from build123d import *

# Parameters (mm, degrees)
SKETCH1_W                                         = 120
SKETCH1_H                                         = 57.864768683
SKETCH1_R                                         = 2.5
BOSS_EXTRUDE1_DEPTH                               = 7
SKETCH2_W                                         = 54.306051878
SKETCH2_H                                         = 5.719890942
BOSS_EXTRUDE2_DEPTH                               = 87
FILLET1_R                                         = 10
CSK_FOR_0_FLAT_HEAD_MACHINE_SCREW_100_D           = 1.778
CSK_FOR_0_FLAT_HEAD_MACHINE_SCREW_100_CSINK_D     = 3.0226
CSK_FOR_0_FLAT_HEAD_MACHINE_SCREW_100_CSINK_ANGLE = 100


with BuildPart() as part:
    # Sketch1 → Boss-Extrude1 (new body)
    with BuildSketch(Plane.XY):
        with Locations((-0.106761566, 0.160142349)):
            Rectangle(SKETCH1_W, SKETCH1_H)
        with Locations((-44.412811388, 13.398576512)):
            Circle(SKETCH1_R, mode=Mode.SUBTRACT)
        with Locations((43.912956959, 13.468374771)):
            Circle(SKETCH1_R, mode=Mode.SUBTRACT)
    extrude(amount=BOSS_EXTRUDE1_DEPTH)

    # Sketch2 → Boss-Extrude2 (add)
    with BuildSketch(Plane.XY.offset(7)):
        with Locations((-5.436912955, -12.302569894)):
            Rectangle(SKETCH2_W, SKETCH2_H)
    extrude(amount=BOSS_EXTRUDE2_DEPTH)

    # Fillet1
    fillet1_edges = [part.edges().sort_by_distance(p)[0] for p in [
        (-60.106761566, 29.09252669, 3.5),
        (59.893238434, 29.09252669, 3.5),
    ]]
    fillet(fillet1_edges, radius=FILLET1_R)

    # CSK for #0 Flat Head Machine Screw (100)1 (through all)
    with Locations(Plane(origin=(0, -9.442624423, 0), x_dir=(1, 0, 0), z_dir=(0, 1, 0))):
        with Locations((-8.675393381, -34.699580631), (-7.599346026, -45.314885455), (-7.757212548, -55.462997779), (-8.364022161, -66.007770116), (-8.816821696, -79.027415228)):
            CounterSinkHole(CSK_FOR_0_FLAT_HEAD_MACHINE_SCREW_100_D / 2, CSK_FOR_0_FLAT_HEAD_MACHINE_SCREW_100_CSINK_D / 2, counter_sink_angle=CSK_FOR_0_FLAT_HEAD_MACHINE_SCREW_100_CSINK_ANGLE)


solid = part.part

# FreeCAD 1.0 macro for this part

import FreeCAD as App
import Part
import Sketcher

V = App.Vector
Q = App.Units.Quantity


def edges_at(feature, points):
    """Names of the edges that pass closest to the given points."""
    edges = feature.Shape.Edges
    near = lambda p: min(range(len(edges)), key=lambda i: edges[i].distToShape(Part.Vertex(*p))[0])
    return sorted({f"Edge{near(p) + 1}" for p in points})

doc = App.newDocument("Part")
params = doc.addObject("Spreadsheet::Sheet", "Params")
for row, (alias, value) in enumerate([
    ("sketch1_diameter", "5 mm"),
    ("sketch1_width", "120 mm"),
    ("pad1_length", "7 mm"),
    ("pad2_length", "87 mm"),
    ("fillet_radius", "10 mm"),
    ("hole_diameter", "1.778 mm"),
    ("hole_csink_diameter", "3.0226 mm"),
], start=1):
    params.set(f"A{row}", alias)
    params.set(f"B{row}", "=" + value)
    params.setAlias(f"B{row}", alias)

body = doc.addObject("PartDesign::Body", "Body")

sketch1 = body.newObject("Sketcher::SketchObject", "Sketch")
sketch1.AttachmentSupport = (doc.getObject("XY_Plane"), [""])
sketch1.MapMode = "FlatFace"
sketch1.addGeometry(Part.LineSegment(V(-60.106762, 29.092527, 0), V(-60.106762, -28.772242, 0)), False)
sketch1.addGeometry(Part.LineSegment(V(-60.106762, -28.772242, 0), V(59.893238, -28.772242, 0)), False)
sketch1.addGeometry(Part.LineSegment(V(59.893238, -28.772242, 0), V(59.893238, 29.092527, 0)), False)
sketch1.addGeometry(Part.LineSegment(V(59.893238, 29.092527, 0), V(-60.106762, 29.092527, 0)), False)
sketch1.addGeometry(Part.Circle(V(-44.412811, 13.398577, 0), V(0, 0, 1), 2.5), False)
sketch1.addGeometry(Part.Circle(V(43.912957, 13.468375, 0), V(0, 0, 1), 2.5), False)
sketch1.addConstraint(Sketcher.Constraint("Coincident", 0, 2, 1, 1))
sketch1.addConstraint(Sketcher.Constraint("Coincident", 1, 2, 2, 1))
sketch1.addConstraint(Sketcher.Constraint("Coincident", 2, 2, 3, 1))
sketch1.addConstraint(Sketcher.Constraint("Coincident", 3, 2, 0, 1))
sketch1.addConstraint(Sketcher.Constraint("Vertical", 0))
sketch1.addConstraint(Sketcher.Constraint("Horizontal", 1))
sketch1.addConstraint(Sketcher.Constraint("Vertical", 2))
sketch1.addConstraint(Sketcher.Constraint("Horizontal", 3))
sketch1.addConstraint(Sketcher.Constraint("Equal", 4, 5))
sketch1.addConstraint(Sketcher.Constraint("Diameter", 4, Q("5 mm")))
sketch1.addConstraint(Sketcher.Constraint("DistanceX", 1, 1, 1, 2, Q("120 mm")))
sketch1.addConstraint(Sketcher.Constraint("DistanceY", 0, 2, 0, 1, Q("57.864769 mm")))
sketch1.addConstraint(Sketcher.Constraint("DistanceY", 4, 3, 5, 3, Q("0.069798 mm")))
sketch1.addConstraint(Sketcher.Constraint("DistanceX", 4, 3, -1, 1, Q("44.412811 mm")))
sketch1.addConstraint(Sketcher.Constraint("DistanceX", 0, 2, -1, 1, Q("60.106762 mm")))
sketch1.addConstraint(Sketcher.Constraint("DistanceY", 0, 2, -1, 1, Q("28.772242 mm")))
sketch1.addConstraint(Sketcher.Constraint("DistanceX", 4, 3, 5, 3, Q("88.325768 mm")))
sketch1.addConstraint(Sketcher.Constraint("DistanceY", 0, 2, 4, 3, Q("42.170819 mm")))
sketch1.setExpression("Constraints[9]", "Params.sketch1_diameter")
sketch1.setExpression("Constraints[10]", "Params.sketch1_width")
pad1 = body.newObject("PartDesign::Pad", "Pad")
pad1.Profile = sketch1
pad1.setExpression("Length", "Params.pad1_length")

sketch2 = body.newObject("Sketcher::SketchObject", "Sketch001")
sketch2.AttachmentSupport = (doc.getObject("XY_Plane"), [""])
sketch2.MapMode = "FlatFace"
sketch2.AttachmentOffset = App.Placement(V(0, 0, 7), App.Rotation())
sketch2.addGeometry(Part.LineSegment(V(-32.589939, -9.442624, 0), V(-32.589939, -15.162515, 0)), False)
sketch2.addGeometry(Part.LineSegment(V(-32.589939, -15.162515, 0), V(21.716113, -15.162515, 0)), False)
sketch2.addGeometry(Part.LineSegment(V(21.716113, -15.162515, 0), V(21.716113, -9.442624, 0)), False)
sketch2.addGeometry(Part.LineSegment(V(21.716113, -9.442624, 0), V(-32.589939, -9.442624, 0)), False)
sketch2.addConstraint(Sketcher.Constraint("Coincident", 0, 2, 1, 1))
sketch2.addConstraint(Sketcher.Constraint("Coincident", 1, 2, 2, 1))
sketch2.addConstraint(Sketcher.Constraint("Coincident", 2, 2, 3, 1))
sketch2.addConstraint(Sketcher.Constraint("Coincident", 3, 2, 0, 1))
sketch2.addConstraint(Sketcher.Constraint("Vertical", 0))
sketch2.addConstraint(Sketcher.Constraint("Horizontal", 1))
sketch2.addConstraint(Sketcher.Constraint("Vertical", 2))
sketch2.addConstraint(Sketcher.Constraint("Horizontal", 3))
sketch2.addConstraint(Sketcher.Constraint("DistanceX", 1, 1, 1, 2, Q("54.306052 mm")))
sketch2.addConstraint(Sketcher.Constraint("DistanceY", 0, 2, 0, 1, Q("5.719891 mm")))
sketch2.addConstraint(Sketcher.Constraint("DistanceX", 0, 2, -1, 1, Q("32.589939 mm")))
sketch2.addConstraint(Sketcher.Constraint("DistanceY", 0, 2, -1, 1, Q("15.162515 mm")))
pad2 = body.newObject("PartDesign::Pad", "Pad001")
pad2.Profile = sketch2
pad2.setExpression("Length", "Params.pad2_length")
doc.recompute()

fillet = body.newObject("PartDesign::Fillet", "Fillet")
fillet.Base = (pad2, edges_at(pad2, [(-60.107, 29.093, 3.5), (59.893, 29.093, 3.5)]))
fillet.setExpression("Radius", "Params.fillet_radius")

sketch3 = body.newObject("Sketcher::SketchObject", "Sketch002")
sketch3.AttachmentSupport = (doc.getObject("XZ_Plane"), [""])
sketch3.MapMode = "FlatFace"
sketch3.AttachmentOffset = App.Placement(V(0, 0, 9.442624), App.Rotation())
sketch3.addGeometry(Part.Circle(V(-8.675393, 34.699581, 0), V(0, 0, 1), 0.889), False)
sketch3.addGeometry(Part.Circle(V(-7.599346, 45.314885, 0), V(0, 0, 1), 0.889), False)
sketch3.addGeometry(Part.Circle(V(-7.757213, 55.462998, 0), V(0, 0, 1), 0.889), False)
sketch3.addGeometry(Part.Circle(V(-8.364022, 66.00777, 0), V(0, 0, 1), 0.889), False)
sketch3.addGeometry(Part.Circle(V(-8.816822, 79.027415, 0), V(0, 0, 1), 0.889), False)
sketch3.addConstraint(Sketcher.Constraint("Equal", 0, 1))
sketch3.addConstraint(Sketcher.Constraint("Equal", 1, 2))
sketch3.addConstraint(Sketcher.Constraint("Equal", 2, 3))
sketch3.addConstraint(Sketcher.Constraint("Equal", 3, 4))
sketch3.addConstraint(Sketcher.Constraint("Diameter", 0, Q("1.778 mm")))
sketch3.addConstraint(Sketcher.Constraint("DistanceX", 4, 3, 3, 3, Q("0.4528 mm")))
sketch3.addConstraint(Sketcher.Constraint("DistanceY", -1, 1, 0, 3, Q("34.699581 mm")))
sketch3.addConstraint(Sketcher.Constraint("DistanceY", -1, 1, 3, 3, Q("66.00777 mm")))
sketch3.addConstraint(Sketcher.Constraint("DistanceX", 4, 3, -1, 1, Q("8.816822 mm")))
sketch3.addConstraint(Sketcher.Constraint("DistanceX", 0, 3, 2, 3, Q("0.918181 mm")))
sketch3.addConstraint(Sketcher.Constraint("DistanceX", 3, 3, 2, 3, Q("0.60681 mm")))
sketch3.addConstraint(Sketcher.Constraint("DistanceY", 1, 3, 4, 3, Q("33.71253 mm")))
sketch3.addConstraint(Sketcher.Constraint("DistanceX", 1, 3, -1, 1, Q("7.599346 mm")))
sketch3.addConstraint(Sketcher.Constraint("DistanceY", -1, 1, 1, 3, Q("45.314885 mm")))
sketch3.addConstraint(Sketcher.Constraint("DistanceY", -1, 1, 2, 3, Q("55.462998 mm")))
doc.recompute()
hole = body.newObject("PartDesign::Hole", "Hole")
hole.Profile = sketch3
hole.ThreadType = "None"
hole.setExpression("Diameter", "Params.hole_diameter")
hole.DepthType = "ThroughAll"
hole.HoleCutType = "Countersink"
hole.setExpression("HoleCutDiameter", "Params.hole_csink_diameter")
hole.HoleCutCountersinkAngle = 100
hole.Reversed = True

doc.recompute()
